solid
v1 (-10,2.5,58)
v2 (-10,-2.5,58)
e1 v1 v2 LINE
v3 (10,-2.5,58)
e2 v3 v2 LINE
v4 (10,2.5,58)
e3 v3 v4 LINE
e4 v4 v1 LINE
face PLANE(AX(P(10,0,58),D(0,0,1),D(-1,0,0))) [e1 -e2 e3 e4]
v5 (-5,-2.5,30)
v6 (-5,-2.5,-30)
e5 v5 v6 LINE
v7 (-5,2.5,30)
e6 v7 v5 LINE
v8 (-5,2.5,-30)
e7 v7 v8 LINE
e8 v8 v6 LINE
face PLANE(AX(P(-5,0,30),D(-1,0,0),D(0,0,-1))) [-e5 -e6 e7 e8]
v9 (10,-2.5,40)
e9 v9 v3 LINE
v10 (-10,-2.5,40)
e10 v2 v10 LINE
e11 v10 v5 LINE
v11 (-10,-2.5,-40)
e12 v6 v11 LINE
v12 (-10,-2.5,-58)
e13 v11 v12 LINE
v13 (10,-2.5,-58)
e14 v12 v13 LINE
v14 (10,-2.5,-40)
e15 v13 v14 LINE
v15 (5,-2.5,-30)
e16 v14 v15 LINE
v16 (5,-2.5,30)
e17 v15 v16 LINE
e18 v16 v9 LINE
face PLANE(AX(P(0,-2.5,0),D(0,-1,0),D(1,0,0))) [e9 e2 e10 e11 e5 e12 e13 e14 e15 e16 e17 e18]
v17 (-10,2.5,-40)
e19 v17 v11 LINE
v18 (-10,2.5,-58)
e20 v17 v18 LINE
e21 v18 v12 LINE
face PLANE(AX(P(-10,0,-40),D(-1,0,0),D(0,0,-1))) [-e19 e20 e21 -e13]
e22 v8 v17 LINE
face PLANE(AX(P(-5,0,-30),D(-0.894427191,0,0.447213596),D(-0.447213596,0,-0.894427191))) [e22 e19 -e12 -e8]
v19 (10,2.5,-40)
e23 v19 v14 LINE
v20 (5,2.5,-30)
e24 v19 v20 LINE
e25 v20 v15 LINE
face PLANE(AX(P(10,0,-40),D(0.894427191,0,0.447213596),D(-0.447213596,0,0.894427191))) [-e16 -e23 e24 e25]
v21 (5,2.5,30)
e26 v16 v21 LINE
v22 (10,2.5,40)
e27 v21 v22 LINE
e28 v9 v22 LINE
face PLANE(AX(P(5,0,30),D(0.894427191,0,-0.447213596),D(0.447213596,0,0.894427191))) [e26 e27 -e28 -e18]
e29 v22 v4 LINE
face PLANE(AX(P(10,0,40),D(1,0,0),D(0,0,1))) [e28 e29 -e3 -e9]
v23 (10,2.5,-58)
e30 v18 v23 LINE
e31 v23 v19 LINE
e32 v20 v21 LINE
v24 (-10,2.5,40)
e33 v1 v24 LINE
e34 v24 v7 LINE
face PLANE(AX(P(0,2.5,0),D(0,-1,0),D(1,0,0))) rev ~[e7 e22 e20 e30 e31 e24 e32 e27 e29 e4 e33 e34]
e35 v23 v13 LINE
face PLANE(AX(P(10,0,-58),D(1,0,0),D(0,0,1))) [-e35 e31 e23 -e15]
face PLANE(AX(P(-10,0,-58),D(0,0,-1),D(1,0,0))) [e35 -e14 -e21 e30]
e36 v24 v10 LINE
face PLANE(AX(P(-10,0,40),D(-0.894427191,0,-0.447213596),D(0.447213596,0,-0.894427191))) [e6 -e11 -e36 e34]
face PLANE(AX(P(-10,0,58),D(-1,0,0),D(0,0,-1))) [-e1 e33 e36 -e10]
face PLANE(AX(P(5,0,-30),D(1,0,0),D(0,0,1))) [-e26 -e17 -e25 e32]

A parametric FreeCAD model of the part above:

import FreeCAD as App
import Part
import Sketcher
from FreeCAD import Vector
Q = App.Units.Quantity

doc = App.newDocument("Part")
body = doc.addObject("PartDesign::Body", "Body")

sketch1 = doc.addObject("Sketcher::SketchObject", "Sketch")
body.addObject(sketch1)
sketch1.AttachmentSupport = (doc.XZ_Plane, [""])
sketch1.MapMode = "FlatFace"
sketch1.addGeometry(Part.LineSegment(Vector(10, 58, 0), Vector(-10, 58, 0)), False)
sketch1.addGeometry(Part.LineSegment(Vector(-10, 58, 0), Vector(-10, 40, 0)), False)
sketch1.addGeometry(Part.LineSegment(Vector(-10, 40, 0), Vector(-5, 30, 0)), False)
sketch1.addGeometry(Part.LineSegment(Vector(-5, 30, 0), Vector(-5, -30, 0)), False)
sketch1.addGeometry(Part.LineSegment(Vector(-5, -30, 0), Vector(-10, -40, 0)), False)
sketch1.addGeometry(Part.LineSegment(Vector(-10, -40, 0), Vector(-10, -58, 0)), False)
sketch1.addGeometry(Part.LineSegment(Vector(-10, -58, 0), Vector(10, -58, 0)), False)
sketch1.addGeometry(Part.LineSegment(Vector(10, -58, 0), Vector(10, -40, 0)), False)
sketch1.addGeometry(Part.LineSegment(Vector(10, -40, 0), Vector(5, -30, 0)), False)
sketch1.addGeometry(Part.LineSegment(Vector(5, -30, 0), Vector(5, 30, 0)), False)
sketch1.addGeometry(Part.LineSegment(Vector(5, 30, 0), Vector(10, 40, 0)), False)
sketch1.addGeometry(Part.LineSegment(Vector(10, 40, 0), Vector(10, 58, 0)), False)
sketch1.addConstraint(Sketcher.Constraint("Coincident", 0, 2, 1, 1))
sketch1.addConstraint(Sketcher.Constraint("Coincident", 1, 2, 2, 1))
sketch1.addConstraint(Sketcher.Constraint("Coincident", 2, 2, 3, 1))
sketch1.addConstraint(Sketcher.Constraint("Coincident", 3, 2, 4, 1))
sketch1.addConstraint(Sketcher.Constraint("Coincident", 4, 2, 5, 1))
sketch1.addConstraint(Sketcher.Constraint("Coincident", 5, 2, 6, 1))
sketch1.addConstraint(Sketcher.Constraint("Coincident", 6, 2, 7, 1))
sketch1.addConstraint(Sketcher.Constraint("Coincident", 7, 2, 8, 1))
sketch1.addConstraint(Sketcher.Constraint("Coincident", 8, 2, 9, 1))
sketch1.addConstraint(Sketcher.Constraint("Coincident", 9, 2, 10, 1))
sketch1.addConstraint(Sketcher.Constraint("Coincident", 10, 2, 11, 1))
sketch1.addConstraint(Sketcher.Constraint("Coincident", 11, 2, 0, 1))
sketch1.addConstraint(Sketcher.Constraint("Horizontal", 0))
sketch1.addConstraint(Sketcher.Constraint("Vertical", 1))
sketch1.addConstraint(Sketcher.Constraint("Vertical", 3))
sketch1.addConstraint(Sketcher.Constraint("Vertical", 5))
sketch1.addConstraint(Sketcher.Constraint("Horizontal", 6))
sketch1.addConstraint(Sketcher.Constraint("Vertical", 7))
sketch1.addConstraint(Sketcher.Constraint("Vertical", 9))
sketch1.addConstraint(Sketcher.Constraint("Vertical", 11))
sketch1.addConstraint(Sketcher.Constraint("Symmetric", 0, 2, 6, 2, -1, 1))
sketch1.addConstraint(Sketcher.Constraint("Symmetric", 2, 2, 8, 2, -1, 1))
sketch1.addConstraint(Sketcher.Constraint("Symmetric", 4, 2, 10, 2, -1, 1))
sketch1.addConstraint(Sketcher.Constraint("Symmetric", 4, 2, 7, 2, -2))
sketch1.addConstraint(Sketcher.Constraint("Parallel", 2, 8))
sketch1.addConstraint(Sketcher.Constraint("Parallel", 4, 10))
sketch1.addConstraint(Sketcher.Constraint("Horizontal", 3, 2, 8, 2))
sketch1.addConstraint(Sketcher.Constraint("DistanceX", 0, 2, 0, 1, Q("20 mm")))
sketch1.addConstraint(Sketcher.Constraint("DistanceY", 1, 2, 1, 1, Q("18 mm")))
sketch1.addConstraint(Sketcher.Constraint("DistanceY", 3, 2, 3, 1, Q("60 mm")))
sketch1.addConstraint(Sketcher.Constraint("DistanceY", -1, 1, 0, 2, Q("58 mm")))
sketch1.addConstraint(Sketcher.Constraint("DistanceX", 2, 2, -1, 1, Q("5 mm")))
pad1 = doc.addObject("PartDesign::Pad", "Pad")
body.addObject(pad1)
pad1.Profile = sketch1
pad1.Length = 5
pad1.Midplane = True

doc.recompute()
